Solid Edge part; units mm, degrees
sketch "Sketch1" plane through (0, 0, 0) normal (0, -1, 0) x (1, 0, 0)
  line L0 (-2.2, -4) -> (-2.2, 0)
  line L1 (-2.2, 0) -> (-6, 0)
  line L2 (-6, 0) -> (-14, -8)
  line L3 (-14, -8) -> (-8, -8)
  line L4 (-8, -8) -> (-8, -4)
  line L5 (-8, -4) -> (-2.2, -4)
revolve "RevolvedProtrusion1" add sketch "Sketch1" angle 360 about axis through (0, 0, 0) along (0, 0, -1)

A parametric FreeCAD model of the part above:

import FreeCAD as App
import Part
import Sketcher

V = App.Vector
Q = App.Units.Quantity


def add_polygon(sketch, points):
    """Adds a closed chain of lines whose ends are joined by coincident constraints."""
    first, n = sketch.GeometryCount, len(points)
    for a, b in zip(points, points[1:] + points[:1]):
        sketch.addGeometry(Part.LineSegment(App.Vector(*a, 0), App.Vector(*b, 0)), False)
    for i in range(n):
        sketch.addConstraint(Sketcher.Constraint("Coincident", first + i, 2, first + (i + 1) % n, 1))

doc = App.newDocument("Part")
body = doc.addObject("PartDesign::Body", "Body")

# Sketch on XZ plane
sketch1 = body.newObject("Sketcher::SketchObject", "Sketch")
sketch1.AttachmentSupport = (doc.getObject("XZ_Plane"), [""])
sketch1.MapMode = "FlatFace"
add_polygon(sketch1, [(-8, -4), (-2.2, -4), (-2.2, 0), (-6, 0), (-14, -8), (-8, -8)])  # lines 0-5
sketch1.addConstraint([
    Sketcher.Constraint("Horizontal", 0),
    Sketcher.Constraint("Vertical", 1),
    Sketcher.Constraint("Horizontal", 2),
    Sketcher.Constraint("Horizontal", 4),
    Sketcher.Constraint("Vertical", 5),
    Sketcher.Constraint("PointOnObject", 1, 2, -1),
    Sketcher.Constraint("Equal", 1, 5),
    Sketcher.Constraint("DistanceX", 4, 1, 4, 2, 6.0),
    Sketcher.Constraint("DistanceY", 1, 1, 1, 2, 4.0),
    Sketcher.Constraint("Angle", 3, Q("-135 deg")),
    Sketcher.Constraint("DistanceX", 0, 1, 0, 2, 5.8),
    Sketcher.Constraint("DistanceX", 2, 2, -1, 1, 6.0),
])
revolution = body.newObject("PartDesign::Revolution", "Revolution")
revolution.Profile = sketch1
revolution.ReferenceAxis = (sketch1, ["V_Axis"])
revolution.Angle = 360

doc.recompute()
